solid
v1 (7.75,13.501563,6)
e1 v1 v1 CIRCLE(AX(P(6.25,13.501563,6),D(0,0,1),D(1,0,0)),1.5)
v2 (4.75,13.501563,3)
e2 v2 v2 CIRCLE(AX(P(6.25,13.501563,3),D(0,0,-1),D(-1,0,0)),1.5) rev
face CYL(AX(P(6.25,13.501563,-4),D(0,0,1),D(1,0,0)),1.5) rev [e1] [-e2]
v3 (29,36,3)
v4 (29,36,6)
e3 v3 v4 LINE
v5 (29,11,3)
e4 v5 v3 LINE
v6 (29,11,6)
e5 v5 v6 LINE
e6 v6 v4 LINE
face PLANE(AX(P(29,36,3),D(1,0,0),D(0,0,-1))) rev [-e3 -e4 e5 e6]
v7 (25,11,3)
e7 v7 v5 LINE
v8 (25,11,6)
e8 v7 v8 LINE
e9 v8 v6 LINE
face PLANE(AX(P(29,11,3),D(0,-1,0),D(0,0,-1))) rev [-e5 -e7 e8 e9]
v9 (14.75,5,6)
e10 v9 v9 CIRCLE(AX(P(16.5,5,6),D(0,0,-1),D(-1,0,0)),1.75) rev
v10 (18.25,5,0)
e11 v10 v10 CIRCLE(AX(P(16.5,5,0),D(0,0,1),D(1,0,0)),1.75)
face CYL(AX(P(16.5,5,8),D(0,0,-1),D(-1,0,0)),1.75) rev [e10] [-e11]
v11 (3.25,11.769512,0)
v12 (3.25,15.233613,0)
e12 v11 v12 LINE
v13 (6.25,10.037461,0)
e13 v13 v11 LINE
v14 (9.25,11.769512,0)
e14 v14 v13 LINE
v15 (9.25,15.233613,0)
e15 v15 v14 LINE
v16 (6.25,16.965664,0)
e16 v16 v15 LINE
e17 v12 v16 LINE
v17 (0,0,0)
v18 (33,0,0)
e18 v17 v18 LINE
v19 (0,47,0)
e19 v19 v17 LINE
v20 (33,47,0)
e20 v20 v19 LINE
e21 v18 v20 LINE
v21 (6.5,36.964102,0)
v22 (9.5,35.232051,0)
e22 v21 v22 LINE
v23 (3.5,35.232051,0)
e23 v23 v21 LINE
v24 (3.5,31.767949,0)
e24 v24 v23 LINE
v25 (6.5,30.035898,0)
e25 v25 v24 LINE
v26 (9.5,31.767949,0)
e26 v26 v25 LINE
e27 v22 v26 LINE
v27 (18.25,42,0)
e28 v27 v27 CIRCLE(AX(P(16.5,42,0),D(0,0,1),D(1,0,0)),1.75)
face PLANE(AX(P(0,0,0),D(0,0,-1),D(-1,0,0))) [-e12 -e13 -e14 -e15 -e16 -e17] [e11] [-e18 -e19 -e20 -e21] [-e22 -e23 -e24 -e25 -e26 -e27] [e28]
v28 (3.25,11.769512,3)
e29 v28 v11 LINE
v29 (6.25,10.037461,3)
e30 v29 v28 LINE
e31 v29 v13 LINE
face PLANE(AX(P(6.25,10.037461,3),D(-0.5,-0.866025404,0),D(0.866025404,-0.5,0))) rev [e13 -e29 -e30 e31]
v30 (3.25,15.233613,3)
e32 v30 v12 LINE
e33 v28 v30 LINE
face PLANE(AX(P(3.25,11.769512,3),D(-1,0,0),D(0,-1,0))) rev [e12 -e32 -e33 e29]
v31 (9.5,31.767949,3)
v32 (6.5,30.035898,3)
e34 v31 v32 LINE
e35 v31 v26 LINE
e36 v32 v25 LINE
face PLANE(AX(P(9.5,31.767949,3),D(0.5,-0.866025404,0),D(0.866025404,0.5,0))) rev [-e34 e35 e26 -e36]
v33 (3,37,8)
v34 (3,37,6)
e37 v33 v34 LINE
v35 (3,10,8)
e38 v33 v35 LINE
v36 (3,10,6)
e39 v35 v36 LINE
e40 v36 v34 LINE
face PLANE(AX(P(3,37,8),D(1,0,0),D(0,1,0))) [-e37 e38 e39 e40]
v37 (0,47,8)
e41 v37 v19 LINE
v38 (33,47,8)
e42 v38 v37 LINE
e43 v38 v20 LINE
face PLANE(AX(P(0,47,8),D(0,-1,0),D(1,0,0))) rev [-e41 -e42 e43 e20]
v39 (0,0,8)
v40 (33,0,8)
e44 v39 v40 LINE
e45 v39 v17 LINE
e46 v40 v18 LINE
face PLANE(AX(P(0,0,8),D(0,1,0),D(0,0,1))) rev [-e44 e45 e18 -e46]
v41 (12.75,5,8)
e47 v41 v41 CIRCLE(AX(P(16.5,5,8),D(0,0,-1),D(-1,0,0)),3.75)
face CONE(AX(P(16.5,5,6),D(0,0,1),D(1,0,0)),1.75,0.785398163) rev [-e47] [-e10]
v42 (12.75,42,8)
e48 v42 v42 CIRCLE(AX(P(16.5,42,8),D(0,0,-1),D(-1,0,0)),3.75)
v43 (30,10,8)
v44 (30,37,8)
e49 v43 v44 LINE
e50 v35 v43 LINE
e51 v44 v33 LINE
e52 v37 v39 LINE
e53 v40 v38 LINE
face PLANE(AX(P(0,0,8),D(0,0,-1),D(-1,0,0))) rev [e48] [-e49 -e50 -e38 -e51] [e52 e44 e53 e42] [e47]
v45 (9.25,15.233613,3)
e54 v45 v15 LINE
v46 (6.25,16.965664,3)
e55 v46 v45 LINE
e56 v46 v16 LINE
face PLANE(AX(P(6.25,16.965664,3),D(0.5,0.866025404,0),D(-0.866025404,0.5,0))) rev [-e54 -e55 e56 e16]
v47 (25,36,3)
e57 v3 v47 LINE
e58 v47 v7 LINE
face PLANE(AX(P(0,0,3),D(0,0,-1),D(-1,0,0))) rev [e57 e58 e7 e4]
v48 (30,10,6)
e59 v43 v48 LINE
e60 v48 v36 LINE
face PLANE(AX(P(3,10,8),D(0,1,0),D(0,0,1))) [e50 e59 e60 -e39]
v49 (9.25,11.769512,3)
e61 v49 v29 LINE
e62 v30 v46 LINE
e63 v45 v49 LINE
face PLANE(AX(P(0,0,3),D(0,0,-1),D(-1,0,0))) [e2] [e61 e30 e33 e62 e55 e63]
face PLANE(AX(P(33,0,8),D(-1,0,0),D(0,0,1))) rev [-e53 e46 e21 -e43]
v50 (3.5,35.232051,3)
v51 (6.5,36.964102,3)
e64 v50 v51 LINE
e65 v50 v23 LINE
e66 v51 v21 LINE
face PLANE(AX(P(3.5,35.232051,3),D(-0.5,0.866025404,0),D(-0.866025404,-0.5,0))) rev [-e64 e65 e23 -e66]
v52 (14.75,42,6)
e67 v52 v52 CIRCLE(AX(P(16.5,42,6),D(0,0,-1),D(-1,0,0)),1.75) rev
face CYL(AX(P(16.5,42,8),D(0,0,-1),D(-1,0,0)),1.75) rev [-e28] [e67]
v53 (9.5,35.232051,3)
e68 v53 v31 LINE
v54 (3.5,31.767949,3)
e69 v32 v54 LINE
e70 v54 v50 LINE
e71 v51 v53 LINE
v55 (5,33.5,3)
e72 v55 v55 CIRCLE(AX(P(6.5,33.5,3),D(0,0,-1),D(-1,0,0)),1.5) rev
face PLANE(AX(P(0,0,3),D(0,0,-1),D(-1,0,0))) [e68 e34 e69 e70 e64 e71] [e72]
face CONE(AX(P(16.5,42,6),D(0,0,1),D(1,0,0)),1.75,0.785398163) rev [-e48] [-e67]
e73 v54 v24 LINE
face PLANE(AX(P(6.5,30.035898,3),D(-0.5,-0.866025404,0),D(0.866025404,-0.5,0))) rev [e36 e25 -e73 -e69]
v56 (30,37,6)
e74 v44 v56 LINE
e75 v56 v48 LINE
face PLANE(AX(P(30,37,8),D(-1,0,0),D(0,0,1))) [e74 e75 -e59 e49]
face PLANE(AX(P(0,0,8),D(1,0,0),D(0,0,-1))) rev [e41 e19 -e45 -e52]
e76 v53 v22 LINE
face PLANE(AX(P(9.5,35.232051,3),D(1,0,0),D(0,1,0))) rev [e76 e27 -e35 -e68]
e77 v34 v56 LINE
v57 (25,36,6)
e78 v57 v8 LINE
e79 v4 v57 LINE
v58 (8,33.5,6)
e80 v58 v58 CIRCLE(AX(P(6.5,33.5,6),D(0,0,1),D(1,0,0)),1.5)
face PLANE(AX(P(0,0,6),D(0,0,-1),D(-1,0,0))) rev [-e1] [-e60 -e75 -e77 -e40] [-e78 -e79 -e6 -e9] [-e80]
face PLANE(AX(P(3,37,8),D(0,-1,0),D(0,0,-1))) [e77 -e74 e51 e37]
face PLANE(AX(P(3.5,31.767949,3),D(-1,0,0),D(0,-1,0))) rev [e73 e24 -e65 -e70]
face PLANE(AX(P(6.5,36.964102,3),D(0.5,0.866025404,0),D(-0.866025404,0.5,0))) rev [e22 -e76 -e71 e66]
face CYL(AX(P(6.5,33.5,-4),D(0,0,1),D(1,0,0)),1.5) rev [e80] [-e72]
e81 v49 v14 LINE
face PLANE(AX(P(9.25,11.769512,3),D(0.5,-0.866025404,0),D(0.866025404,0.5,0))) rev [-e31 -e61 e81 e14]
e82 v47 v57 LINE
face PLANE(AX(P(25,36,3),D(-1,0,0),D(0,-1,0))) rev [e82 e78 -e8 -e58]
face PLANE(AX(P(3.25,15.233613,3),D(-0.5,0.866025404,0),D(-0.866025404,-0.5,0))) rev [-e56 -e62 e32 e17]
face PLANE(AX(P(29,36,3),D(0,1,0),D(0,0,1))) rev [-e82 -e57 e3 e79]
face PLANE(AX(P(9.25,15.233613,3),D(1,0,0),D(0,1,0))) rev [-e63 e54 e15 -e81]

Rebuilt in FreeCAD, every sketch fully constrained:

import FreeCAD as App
import Part
import Sketcher
Q = App.Units.Quantity


def edges_at(feature, points):
    """Names of the edges that pass closest to the given points."""
    edges = feature.Shape.Edges
    near = lambda p: min(range(len(edges)), key=lambda i: edges[i].distToShape(Part.Vertex(*p))[0])
    return sorted({f"Edge{near(p) + 1}" for p in points})

doc = App.newDocument("Part")
body = doc.addObject("PartDesign::Body", "Body")

# Sketch on XY plane
sketch1 = body.newObject("Sketcher::SketchObject", "Sketch")
sketch1.AttachmentSupport = (doc.getObject("XY_Plane"), [""])
sketch1.MapMode = "FlatFace"
sketch1.addGeometry([
    Part.LineSegment(App.Vector(0, 47, 0), App.Vector(0, 0, 0)),  # 0
    Part.LineSegment(App.Vector(0, 0, 0), App.Vector(33, 0, 0)),  # 1
    Part.LineSegment(App.Vector(33, 0, 0), App.Vector(33, 47, 0)),  # 2
    Part.LineSegment(App.Vector(33, 47, 0), App.Vector(0, 47, 0)),  # 3
    Part.Circle(App.Vector(16.5, 5, 0), App.Vector(0, 0, 1), 1.8),  # 4
    Part.LineSegment(App.Vector(30, 10, 0), App.Vector(3, 10, 0)),  # 5
    Part.LineSegment(App.Vector(3, 10, 0), App.Vector(3, 37, 0)),  # 6
    Part.LineSegment(App.Vector(3, 37, 0), App.Vector(30, 37, 0)),  # 7
    Part.LineSegment(App.Vector(30, 37, 0), App.Vector(30, 10, 0)),  # 8
    Part.Circle(App.Vector(16.5, 42, 0), App.Vector(0, 0, 1), 1.8),  # 9
], False)
sketch1.addConstraint([
    Sketcher.Constraint("Coincident", 0, 2, 1, 1),
    Sketcher.Constraint("Coincident", 1, 2, 2, 1),
    Sketcher.Constraint("Coincident", 2, 2, 3, 1),
    Sketcher.Constraint("Coincident", 3, 2, 0, 1),
    Sketcher.Constraint("Coincident", 5, 2, 6, 1),
    Sketcher.Constraint("Coincident", 6, 2, 7, 1),
    Sketcher.Constraint("Coincident", 7, 2, 8, 1),
    Sketcher.Constraint("Coincident", 8, 2, 5, 1),
    Sketcher.Constraint("Vertical", 0),
    Sketcher.Constraint("Horizontal", 1),
    Sketcher.Constraint("Vertical", 2),
    Sketcher.Constraint("Horizontal", 3),
    Sketcher.Constraint("Horizontal", 5),
    Sketcher.Constraint("Vertical", 6),
    Sketcher.Constraint("Horizontal", 7),
    Sketcher.Constraint("Vertical", 8),
    Sketcher.Constraint("Coincident", 0, 2, -1, 1),
    Sketcher.Constraint("Equal", 4, 9),
    Sketcher.Constraint("Vertical", 4, 3, 9, 3),
    Sketcher.Constraint("Equal", 7, 6),
    Sketcher.Constraint("Diameter", 4, 3.5),
    Sketcher.Constraint("DistanceX", 1, 1, 1, 2, 33.0),
    Sketcher.Constraint("DistanceX", 5, 2, 5, 1, 27.0),
    Sketcher.Constraint("DistanceY", 0, 2, 0, 1, 47.0),
    Sketcher.Constraint("DistanceY", -1, 1, 4, 3, 5.0),
    Sketcher.Constraint("DistanceY", -1, 1, 9, 3, 42.0),
    Sketcher.Constraint("DistanceX", -1, 1, 5, 2, 3.0),
    Sketcher.Constraint("DistanceY", -1, 1, 5, 2, 10.0),
    Sketcher.Constraint("DistanceX", -1, 1, 4, 3, 16.5),
])
pad1 = body.newObject("PartDesign::Pad", "Pad")
pad1.Profile = sketch1
pad1.Length = 8

# Sketch on XY plane
sketch2 = body.newObject("Sketcher::SketchObject", "Sketch001")
sketch2.AttachmentSupport = (doc.getObject("XY_Plane"), [""])
sketch2.MapMode = "FlatFace"
sketch2.addGeometry([
    Part.LineSegment(App.Vector(30, 37, 0), App.Vector(30, 10, 0)),
    Part.LineSegment(App.Vector(30, 10, 0), App.Vector(3, 10, 0)),
    Part.LineSegment(App.Vector(3, 10, 0), App.Vector(3, 37, 0)),
    Part.LineSegment(App.Vector(3, 37, 0), App.Vector(30, 37, 0)),
], False)
sketch2.addConstraint([
    Sketcher.Constraint("Coincident", 0, 2, 1, 1),
    Sketcher.Constraint("Coincident", 1, 2, 2, 1),
    Sketcher.Constraint("Coincident", 2, 2, 3, 1),
    Sketcher.Constraint("Coincident", 3, 2, 0, 1),
    Sketcher.Constraint("Vertical", 0),
    Sketcher.Constraint("Horizontal", 1),
    Sketcher.Constraint("Vertical", 2),
    Sketcher.Constraint("Horizontal", 3),
    Sketcher.Constraint("Equal", 3, 0),
    Sketcher.Constraint("DistanceX", 1, 2, 1, 1, 27.0),
    Sketcher.Constraint("DistanceX", -1, 1, 0, 2, 30.0),
    Sketcher.Constraint("DistanceY", -1, 1, 0, 2, 10.0),
])
pad2 = body.newObject("PartDesign::Pad", "Pad001")
pad2.Profile = sketch2
pad2.Length = 6
doc.recompute()

chamfer = body.newObject("PartDesign::Chamfer", "Chamfer")
chamfer.Base = (pad2, edges_at(pad2, [(14.75, 42, 8), (14.75, 5, 8)]))
chamfer.Size = 2

# Sketch on XY plane
sketch3 = body.newObject("Sketcher::SketchObject", "Sketch002")
sketch3.AttachmentSupport = (doc.getObject("XY_Plane"), [""])
sketch3.MapMode = "FlatFace"
sketch3.AttachmentOffset = App.Placement(App.Vector(0, 0, 6), App.Rotation())
sketch3.addGeometry([
    Part.Circle(App.Vector(6.5, 33.5, 0), App.Vector(0, 0, 1), 1.5),
    Part.Circle(App.Vector(6.2, 13.5, 0), App.Vector(0, 0, 1), 1.5),
], False)
sketch3.addConstraint([
    Sketcher.Constraint("Equal", 0, 1),
    Sketcher.Constraint("Diameter", 0, 3.0),
    Sketcher.Constraint("DistanceX", -1, 1, 0, 3, 6.5),
    Sketcher.Constraint("DistanceY", -1, 1, 0, 3, 33.5),
    Sketcher.Constraint("DistanceX", -1, 1, 1, 3, 6.25),
    Sketcher.Constraint("DistanceY", -1, 1, 1, 3, 13.501563),
])
pocket1 = body.newObject("PartDesign::Pocket", "Pocket")
pocket1.Profile = sketch3
pocket1.Length = 10

# Sketch on XY plane
sketch4 = body.newObject("Sketcher::SketchObject", "Sketch003")
sketch4.AttachmentSupport = (doc.getObject("XY_Plane"), [""])
sketch4.MapMode = "FlatFace"
sketch4.AttachmentOffset = App.Placement(App.Vector(0, 0, 6), App.Rotation())
sketch4.addGeometry([
    Part.LineSegment(App.Vector(25, 36, 0), App.Vector(25, 11, 0)),
    Part.LineSegment(App.Vector(25, 11, 0), App.Vector(29, 11, 0)),
    Part.LineSegment(App.Vector(29, 11, 0), App.Vector(29, 36, 0)),
    Part.LineSegment(App.Vector(29, 36, 0), App.Vector(25, 36, 0)),
], False)
sketch4.addConstraint([
    Sketcher.Constraint("Coincident", 0, 2, 1, 1),
    Sketcher.Constraint("Coincident", 1, 2, 2, 1),
    Sketcher.Constraint("Coincident", 2, 2, 3, 1),
    Sketcher.Constraint("Coincident", 3, 2, 0, 1),
    Sketcher.Constraint("Vertical", 0),
    Sketcher.Constraint("Horizontal", 1),
    Sketcher.Constraint("Vertical", 2),
    Sketcher.Constraint("Horizontal", 3),
    Sketcher.Constraint("DistanceX", 1, 1, 1, 2, 4.0),
    Sketcher.Constraint("DistanceY", 0, 2, 0, 1, 25.0),
    Sketcher.Constraint("DistanceX", -1, 1, 0, 2, 25.0),
    Sketcher.Constraint("DistanceY", -1, 1, 0, 2, 11.0),
])
pocket2 = body.newObject("PartDesign::Pocket", "Pocket001")
pocket2.Profile = sketch4
pocket2.Length = 3

# Sketch on XY plane
sketch5 = body.newObject("Sketcher::SketchObject", "Sketch004")
sketch5.AttachmentSupport = (doc.getObject("XY_Plane"), [""])
sketch5.MapMode = "FlatFace"
sketch5.addGeometry([
    Part.LineSegment(App.Vector(6.5, 37, 0), App.Vector(9.5, 35.2, 0)),  # 0
    Part.LineSegment(App.Vector(9.5, 35.2, 0), App.Vector(9.5, 31.8, 0)),  # 1
    Part.LineSegment(App.Vector(9.5, 31.8, 0), App.Vector(6.5, 30, 0)),  # 2
    Part.LineSegment(App.Vector(6.5, 30, 0), App.Vector(3.5, 31.8, 0)),  # 3
    Part.LineSegment(App.Vector(3.5, 31.8, 0), App.Vector(3.5, 35.2, 0)),  # 4
    Part.LineSegment(App.Vector(3.5, 35.2, 0), App.Vector(6.5, 37, 0)),  # 5
    Part.LineSegment(App.Vector(3.2, 15.2, 0), App.Vector(6.2, 17, 0)),  # 6
    Part.LineSegment(App.Vector(6.2, 17, 0), App.Vector(9.2, 15.2, 0)),  # 7
    Part.LineSegment(App.Vector(9.2, 15.2, 0), App.Vector(9.2, 11.8, 0)),  # 8
    Part.LineSegment(App.Vector(9.2, 11.8, 0), App.Vector(6.2, 10, 0)),  # 9
    Part.LineSegment(App.Vector(6.2, 10, 0), App.Vector(3.2, 11.8, 0)),  # 10
    Part.LineSegment(App.Vector(3.2, 11.8, 0), App.Vector(3.2, 15.2, 0)),  # 11
], False)
sketch5.addConstraint([
    Sketcher.Constraint("Coincident", 0, 2, 1, 1),
    Sketcher.Constraint("Coincident", 1, 2, 2, 1),
    Sketcher.Constraint("Coincident", 2, 2, 3, 1),
    Sketcher.Constraint("Coincident", 3, 2, 4, 1),
    Sketcher.Constraint("Coincident", 4, 2, 5, 1),
    Sketcher.Constraint("Coincident", 5, 2, 0, 1),
    Sketcher.Constraint("Coincident", 6, 2, 7, 1),
    Sketcher.Constraint("Coincident", 7, 2, 8, 1),
    Sketcher.Constraint("Coincident", 8, 2, 9, 1),
    Sketcher.Constraint("Coincident", 9, 2, 10, 1),
    Sketcher.Constraint("Coincident", 10, 2, 11, 1),
    Sketcher.Constraint("Coincident", 11, 2, 6, 1),
    Sketcher.Constraint("Vertical", 1),
    Sketcher.Constraint("Vertical", 4),
    Sketcher.Constraint("Vertical", 8),
    Sketcher.Constraint("Vertical", 11),
    Sketcher.Constraint("Parallel", 0, 3),
    Sketcher.Constraint("Parallel", 2, 5),
    Sketcher.Constraint("Parallel", 5, 6),
    Sketcher.Constraint("Parallel", 3, 7),
    Sketcher.Constraint("Parallel", 6, 9),
    Sketcher.Constraint("Parallel", 7, 10),
    Sketcher.Constraint("Horizontal", 1, 2, 3, 2),
    Sketcher.Constraint("Horizontal", 0, 2, 4, 2),
    Sketcher.Constraint("Horizontal", 8, 2, 10, 2),
    Sketcher.Constraint("Horizontal", 7, 2, 11, 2),
    Sketcher.Constraint("Vertical", 2, 2, 5, 2),
    Sketcher.Constraint("Equal", 4, 8),
    Sketcher.Constraint("Equal", 5, 6),
    Sketcher.Constraint("Angle", 0, Q("-30 deg")),
    Sketcher.Constraint("DistanceX", 2, 2, 1, 2, 3.0),
    Sketcher.Constraint("DistanceX", -1, 1, 0, 2, 9.5),
    Sketcher.Constraint("DistanceX", -1, 1, 6, 2, 6.25),
    Sketcher.Constraint("DistanceY", 1, 2, 1, 1, 3.464102),
    Sketcher.Constraint("DistanceY", -1, 1, 2, 2, 30.035898),
    Sketcher.Constraint("DistanceY", -1, 1, 8, 2, 11.769512),
])
pocket3 = body.newObject("PartDesign::Pocket", "Pocket002")
pocket3.Profile = sketch5
pocket3.Length = 3
pocket3.Reversed = True

doc.recompute()
